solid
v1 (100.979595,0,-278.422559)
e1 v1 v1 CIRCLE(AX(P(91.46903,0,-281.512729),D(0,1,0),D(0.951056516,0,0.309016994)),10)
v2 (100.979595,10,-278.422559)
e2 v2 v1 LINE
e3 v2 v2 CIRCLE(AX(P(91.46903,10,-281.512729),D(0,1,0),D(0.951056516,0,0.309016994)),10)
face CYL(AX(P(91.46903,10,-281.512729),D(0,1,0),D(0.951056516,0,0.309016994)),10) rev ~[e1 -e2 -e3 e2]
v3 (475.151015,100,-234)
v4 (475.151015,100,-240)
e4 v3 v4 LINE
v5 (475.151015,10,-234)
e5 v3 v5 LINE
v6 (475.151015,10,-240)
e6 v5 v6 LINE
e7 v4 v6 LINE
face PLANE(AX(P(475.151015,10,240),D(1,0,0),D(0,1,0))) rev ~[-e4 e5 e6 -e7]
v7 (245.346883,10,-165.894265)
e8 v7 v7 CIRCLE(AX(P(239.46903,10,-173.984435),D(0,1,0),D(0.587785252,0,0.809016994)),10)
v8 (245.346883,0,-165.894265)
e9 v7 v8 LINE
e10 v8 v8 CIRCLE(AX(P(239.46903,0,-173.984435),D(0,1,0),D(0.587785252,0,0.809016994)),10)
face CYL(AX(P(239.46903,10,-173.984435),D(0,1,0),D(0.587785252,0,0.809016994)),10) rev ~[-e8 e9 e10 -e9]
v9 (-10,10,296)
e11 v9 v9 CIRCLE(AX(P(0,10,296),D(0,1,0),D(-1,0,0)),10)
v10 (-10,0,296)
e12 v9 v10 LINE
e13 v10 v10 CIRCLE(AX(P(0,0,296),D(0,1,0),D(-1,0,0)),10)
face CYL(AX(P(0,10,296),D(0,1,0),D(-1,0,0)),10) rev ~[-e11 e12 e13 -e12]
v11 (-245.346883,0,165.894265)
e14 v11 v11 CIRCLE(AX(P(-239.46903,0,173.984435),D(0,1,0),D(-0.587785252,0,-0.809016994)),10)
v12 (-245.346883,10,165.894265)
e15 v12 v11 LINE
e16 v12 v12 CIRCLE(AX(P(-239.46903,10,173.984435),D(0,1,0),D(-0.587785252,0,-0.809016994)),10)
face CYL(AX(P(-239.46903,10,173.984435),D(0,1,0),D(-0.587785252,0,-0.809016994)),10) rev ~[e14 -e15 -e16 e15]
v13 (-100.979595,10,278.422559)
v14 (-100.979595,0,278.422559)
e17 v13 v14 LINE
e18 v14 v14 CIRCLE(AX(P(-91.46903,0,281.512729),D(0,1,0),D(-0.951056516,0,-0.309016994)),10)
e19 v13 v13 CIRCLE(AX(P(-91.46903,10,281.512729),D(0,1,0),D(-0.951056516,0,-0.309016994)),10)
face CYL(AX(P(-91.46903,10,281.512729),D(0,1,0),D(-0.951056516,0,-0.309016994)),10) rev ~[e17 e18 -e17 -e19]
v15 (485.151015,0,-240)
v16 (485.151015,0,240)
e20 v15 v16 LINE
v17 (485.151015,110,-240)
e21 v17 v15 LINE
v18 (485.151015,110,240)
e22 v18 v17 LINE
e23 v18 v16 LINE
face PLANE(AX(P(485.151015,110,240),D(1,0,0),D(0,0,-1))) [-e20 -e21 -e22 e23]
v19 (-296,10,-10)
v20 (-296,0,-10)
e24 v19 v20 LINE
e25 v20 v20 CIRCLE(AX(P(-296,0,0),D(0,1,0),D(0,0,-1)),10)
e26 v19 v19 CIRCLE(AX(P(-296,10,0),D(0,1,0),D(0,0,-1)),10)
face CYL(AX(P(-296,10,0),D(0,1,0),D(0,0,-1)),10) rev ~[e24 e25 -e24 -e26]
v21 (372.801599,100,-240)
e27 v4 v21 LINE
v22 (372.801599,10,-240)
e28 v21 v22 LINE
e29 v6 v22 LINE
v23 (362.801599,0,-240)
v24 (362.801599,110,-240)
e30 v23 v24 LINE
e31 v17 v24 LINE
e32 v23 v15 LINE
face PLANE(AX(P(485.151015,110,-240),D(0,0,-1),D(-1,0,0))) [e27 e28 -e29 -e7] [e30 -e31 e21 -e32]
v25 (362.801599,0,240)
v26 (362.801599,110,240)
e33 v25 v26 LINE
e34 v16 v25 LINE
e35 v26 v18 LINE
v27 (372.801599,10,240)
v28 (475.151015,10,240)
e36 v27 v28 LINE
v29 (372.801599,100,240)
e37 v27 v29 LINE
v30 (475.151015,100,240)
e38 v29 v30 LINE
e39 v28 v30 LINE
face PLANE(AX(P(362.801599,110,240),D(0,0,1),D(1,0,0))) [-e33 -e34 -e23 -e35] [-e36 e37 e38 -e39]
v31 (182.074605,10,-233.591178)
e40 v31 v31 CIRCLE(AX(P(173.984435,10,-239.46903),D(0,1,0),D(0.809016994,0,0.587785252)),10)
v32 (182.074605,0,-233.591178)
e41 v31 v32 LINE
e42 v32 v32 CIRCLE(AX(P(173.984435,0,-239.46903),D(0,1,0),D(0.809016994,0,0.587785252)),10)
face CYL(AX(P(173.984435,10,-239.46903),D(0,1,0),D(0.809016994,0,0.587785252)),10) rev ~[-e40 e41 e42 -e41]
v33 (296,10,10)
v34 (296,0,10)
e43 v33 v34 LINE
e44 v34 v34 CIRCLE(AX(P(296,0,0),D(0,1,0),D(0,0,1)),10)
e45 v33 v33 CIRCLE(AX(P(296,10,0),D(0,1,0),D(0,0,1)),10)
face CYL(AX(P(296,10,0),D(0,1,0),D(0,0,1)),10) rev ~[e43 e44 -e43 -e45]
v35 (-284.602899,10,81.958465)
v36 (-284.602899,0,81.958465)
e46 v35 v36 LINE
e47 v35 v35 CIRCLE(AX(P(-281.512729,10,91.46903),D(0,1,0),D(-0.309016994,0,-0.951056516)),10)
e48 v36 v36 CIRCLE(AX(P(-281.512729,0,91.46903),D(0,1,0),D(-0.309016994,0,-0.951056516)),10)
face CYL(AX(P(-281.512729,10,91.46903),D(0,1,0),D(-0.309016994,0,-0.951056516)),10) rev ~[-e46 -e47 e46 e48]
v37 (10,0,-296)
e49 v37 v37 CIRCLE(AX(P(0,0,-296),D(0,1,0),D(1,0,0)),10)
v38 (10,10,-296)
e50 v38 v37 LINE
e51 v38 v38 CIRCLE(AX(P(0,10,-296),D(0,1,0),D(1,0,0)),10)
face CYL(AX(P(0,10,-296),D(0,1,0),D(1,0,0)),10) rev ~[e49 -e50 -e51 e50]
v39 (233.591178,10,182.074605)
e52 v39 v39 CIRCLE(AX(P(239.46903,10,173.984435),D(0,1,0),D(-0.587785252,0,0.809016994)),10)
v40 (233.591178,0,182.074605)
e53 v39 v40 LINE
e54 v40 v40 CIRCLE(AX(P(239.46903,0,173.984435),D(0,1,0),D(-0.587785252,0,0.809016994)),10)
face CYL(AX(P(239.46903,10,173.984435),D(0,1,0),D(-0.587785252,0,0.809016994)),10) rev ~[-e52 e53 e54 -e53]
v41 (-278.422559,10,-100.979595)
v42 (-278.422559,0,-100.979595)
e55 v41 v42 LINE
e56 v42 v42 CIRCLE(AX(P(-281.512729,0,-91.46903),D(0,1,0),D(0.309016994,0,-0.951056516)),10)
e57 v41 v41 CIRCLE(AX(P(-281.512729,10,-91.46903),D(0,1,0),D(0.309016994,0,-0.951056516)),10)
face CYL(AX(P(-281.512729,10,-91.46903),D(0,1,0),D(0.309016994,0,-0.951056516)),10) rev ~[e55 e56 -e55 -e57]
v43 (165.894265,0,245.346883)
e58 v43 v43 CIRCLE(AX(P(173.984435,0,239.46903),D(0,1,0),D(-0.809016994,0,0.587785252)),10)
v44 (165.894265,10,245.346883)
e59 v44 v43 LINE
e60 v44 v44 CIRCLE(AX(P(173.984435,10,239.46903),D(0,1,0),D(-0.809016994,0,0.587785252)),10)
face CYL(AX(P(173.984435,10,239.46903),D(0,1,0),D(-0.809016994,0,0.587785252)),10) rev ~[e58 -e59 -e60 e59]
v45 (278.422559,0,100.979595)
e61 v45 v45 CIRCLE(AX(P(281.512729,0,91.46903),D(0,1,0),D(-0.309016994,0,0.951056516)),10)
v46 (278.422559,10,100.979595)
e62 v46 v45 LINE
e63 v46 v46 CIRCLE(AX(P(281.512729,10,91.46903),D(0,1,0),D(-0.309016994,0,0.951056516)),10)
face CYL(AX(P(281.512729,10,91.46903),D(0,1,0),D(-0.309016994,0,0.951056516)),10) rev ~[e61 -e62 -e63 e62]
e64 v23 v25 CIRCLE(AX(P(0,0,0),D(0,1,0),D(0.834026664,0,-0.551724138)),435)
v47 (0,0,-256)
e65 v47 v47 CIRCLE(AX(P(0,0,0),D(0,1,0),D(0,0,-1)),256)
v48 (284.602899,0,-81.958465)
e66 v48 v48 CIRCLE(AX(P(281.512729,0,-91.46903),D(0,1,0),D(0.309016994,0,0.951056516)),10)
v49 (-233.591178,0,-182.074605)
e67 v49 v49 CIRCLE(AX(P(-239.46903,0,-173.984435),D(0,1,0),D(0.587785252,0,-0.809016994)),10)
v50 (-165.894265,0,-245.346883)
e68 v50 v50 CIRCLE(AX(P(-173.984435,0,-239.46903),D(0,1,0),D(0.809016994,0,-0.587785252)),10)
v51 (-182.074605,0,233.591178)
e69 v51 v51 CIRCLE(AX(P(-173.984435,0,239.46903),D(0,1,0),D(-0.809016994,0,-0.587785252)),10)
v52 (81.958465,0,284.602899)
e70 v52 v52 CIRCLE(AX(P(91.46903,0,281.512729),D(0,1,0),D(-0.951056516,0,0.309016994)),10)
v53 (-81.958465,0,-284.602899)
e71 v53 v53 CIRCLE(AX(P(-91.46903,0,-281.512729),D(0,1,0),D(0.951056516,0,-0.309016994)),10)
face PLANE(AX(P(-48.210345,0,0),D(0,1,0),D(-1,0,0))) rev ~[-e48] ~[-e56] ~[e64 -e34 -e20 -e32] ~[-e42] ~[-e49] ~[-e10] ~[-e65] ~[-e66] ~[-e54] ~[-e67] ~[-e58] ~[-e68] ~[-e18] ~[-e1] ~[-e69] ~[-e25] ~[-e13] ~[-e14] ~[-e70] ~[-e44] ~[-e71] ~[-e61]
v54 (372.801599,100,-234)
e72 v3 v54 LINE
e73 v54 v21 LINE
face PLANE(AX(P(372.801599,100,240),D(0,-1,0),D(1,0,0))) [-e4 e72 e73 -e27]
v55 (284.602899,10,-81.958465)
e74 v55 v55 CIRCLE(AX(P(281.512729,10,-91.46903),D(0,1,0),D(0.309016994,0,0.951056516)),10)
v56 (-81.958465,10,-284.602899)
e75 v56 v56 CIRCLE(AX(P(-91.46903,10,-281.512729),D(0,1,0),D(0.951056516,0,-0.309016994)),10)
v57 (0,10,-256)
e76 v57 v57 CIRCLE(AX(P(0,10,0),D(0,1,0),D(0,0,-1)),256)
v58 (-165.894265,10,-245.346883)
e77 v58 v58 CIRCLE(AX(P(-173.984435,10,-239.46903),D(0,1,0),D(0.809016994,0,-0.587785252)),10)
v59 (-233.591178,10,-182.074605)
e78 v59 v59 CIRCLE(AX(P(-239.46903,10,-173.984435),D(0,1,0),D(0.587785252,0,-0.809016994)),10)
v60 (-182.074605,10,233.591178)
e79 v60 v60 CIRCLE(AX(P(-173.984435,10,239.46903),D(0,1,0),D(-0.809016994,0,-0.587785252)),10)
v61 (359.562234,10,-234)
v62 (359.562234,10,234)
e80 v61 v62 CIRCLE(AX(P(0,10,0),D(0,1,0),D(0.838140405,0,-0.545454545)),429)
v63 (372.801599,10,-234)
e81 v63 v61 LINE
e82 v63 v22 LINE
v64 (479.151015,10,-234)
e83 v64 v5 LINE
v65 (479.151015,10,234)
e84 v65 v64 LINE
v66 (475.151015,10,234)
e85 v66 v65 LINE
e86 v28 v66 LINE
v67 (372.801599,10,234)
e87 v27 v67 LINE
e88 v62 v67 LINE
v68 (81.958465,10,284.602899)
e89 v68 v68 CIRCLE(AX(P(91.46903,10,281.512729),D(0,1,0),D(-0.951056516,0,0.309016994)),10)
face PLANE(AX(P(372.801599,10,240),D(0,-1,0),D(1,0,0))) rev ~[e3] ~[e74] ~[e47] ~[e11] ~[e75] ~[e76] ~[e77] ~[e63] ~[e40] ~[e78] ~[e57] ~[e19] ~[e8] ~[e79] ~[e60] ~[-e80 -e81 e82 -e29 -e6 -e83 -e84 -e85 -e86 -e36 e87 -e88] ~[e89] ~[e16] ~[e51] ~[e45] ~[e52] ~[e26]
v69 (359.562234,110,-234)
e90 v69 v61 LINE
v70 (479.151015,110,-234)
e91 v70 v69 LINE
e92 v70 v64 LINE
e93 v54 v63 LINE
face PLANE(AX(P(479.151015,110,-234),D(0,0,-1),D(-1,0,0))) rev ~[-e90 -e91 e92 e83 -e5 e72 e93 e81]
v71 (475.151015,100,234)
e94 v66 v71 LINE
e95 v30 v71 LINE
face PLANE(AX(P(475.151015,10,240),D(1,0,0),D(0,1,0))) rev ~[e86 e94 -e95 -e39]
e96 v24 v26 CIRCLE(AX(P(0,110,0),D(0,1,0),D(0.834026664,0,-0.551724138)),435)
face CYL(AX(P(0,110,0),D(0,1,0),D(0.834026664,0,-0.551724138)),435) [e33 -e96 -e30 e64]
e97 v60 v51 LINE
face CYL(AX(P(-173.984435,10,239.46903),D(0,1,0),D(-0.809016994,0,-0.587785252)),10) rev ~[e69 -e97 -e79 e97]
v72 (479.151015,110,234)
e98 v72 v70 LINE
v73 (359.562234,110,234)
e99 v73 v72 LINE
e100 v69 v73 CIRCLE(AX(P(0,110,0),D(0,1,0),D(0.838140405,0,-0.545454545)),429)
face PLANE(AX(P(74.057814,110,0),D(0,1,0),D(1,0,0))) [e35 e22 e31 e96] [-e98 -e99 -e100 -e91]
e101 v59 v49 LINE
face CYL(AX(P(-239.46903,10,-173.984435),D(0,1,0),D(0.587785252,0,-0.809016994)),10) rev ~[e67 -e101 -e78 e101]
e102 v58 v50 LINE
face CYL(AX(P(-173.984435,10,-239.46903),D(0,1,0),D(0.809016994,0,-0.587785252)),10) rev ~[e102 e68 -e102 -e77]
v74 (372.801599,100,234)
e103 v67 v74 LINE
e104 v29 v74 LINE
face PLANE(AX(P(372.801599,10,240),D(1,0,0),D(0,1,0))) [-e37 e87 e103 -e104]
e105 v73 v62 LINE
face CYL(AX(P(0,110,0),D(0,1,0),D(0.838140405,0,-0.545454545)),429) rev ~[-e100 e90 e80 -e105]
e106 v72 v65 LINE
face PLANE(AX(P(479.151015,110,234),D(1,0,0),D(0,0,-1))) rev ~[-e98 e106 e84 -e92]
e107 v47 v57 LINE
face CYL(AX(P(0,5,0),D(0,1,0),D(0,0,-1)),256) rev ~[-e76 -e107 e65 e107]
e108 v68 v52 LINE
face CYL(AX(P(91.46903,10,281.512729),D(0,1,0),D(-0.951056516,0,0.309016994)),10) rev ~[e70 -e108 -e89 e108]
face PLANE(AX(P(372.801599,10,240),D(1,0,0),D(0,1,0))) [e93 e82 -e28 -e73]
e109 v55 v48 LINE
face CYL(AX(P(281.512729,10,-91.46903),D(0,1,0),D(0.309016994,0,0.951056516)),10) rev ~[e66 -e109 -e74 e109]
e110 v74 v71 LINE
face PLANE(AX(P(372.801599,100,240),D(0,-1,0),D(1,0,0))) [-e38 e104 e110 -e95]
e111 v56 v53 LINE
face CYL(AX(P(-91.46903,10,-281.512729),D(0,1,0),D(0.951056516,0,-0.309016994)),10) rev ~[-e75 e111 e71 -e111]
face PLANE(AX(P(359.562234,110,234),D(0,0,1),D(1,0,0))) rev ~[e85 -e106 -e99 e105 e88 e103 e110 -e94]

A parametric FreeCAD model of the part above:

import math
import FreeCAD as App
import Part
import Sketcher
from FreeCAD import Vector


def add_polygon(sketch, points):
    """Adds a closed chain of lines whose ends are joined by coincident constraints."""
    first, n = sketch.GeometryCount, len(points)
    for a, b in zip(points, points[1:] + points[:1]):
        sketch.addGeometry(Part.LineSegment(App.Vector(*a, 0), App.Vector(*b, 0)), False)
    for i in range(n):
        sketch.addConstraint(Sketcher.Constraint("Coincident", first + i, 2, first + (i + 1) % n, 1))

doc = App.newDocument("Part")
body = doc.addObject("PartDesign::Body", "Body")

# Sketch on XY plane
sketch1 = body.newObject("Sketcher::SketchObject", "Sketch")
sketch1.AttachmentSupport = (doc.getObject("XY_Plane"), [""])
sketch1.MapMode = "FlatFace"
add_polygon(sketch1, [(256, 10), (256, 0), (336, 0), (336, 10)])  # lines 0-3
sketch1.addConstraint([
    Sketcher.Constraint("Vertical", 0),
    Sketcher.Constraint("Horizontal", 1),
    Sketcher.Constraint("Vertical", 2),
    Sketcher.Constraint("Horizontal", 3),
    Sketcher.Constraint("PointOnObject", 0, 2, -1),
    Sketcher.Constraint("DistanceX", 1, 1, 1, 2, 80.0),
    Sketcher.Constraint("DistanceY", 0, 2, 0, 1, 10.0),
    Sketcher.Constraint("DistanceX", -1, 1, 0, 2, 256.0),
])
revolution = body.newObject("PartDesign::Revolution", "Revolution")
revolution.Profile = sketch1
revolution.ReferenceAxis = (sketch1, ["V_Axis"])
revolution.Angle = 360

# Sketch on XZ plane
sketch2 = body.newObject("Sketcher::SketchObject", "Sketch001")
sketch2.AttachmentSupport = (doc.getObject("XZ_Plane"), [""])
sketch2.MapMode = "FlatFace"
sketch2.AttachmentOffset = App.Placement(Vector(0, 0, -10), App.Rotation())
sketch2.addGeometry(Part.Circle(Vector(296, 0, 0), Vector(0, 0, 1), 10), False)
sketch2.addConstraint([
    Sketcher.Constraint("PointOnObject", 0, 3, -1),
    Sketcher.Constraint("Diameter", 0, 20.0),
    Sketcher.Constraint("DistanceX", -1, 1, 0, 3, 296.0),
])
pocket1 = body.newObject("PartDesign::Pocket", "Pocket")
pocket1.Profile = sketch2
pocket1.Type = "ThroughAll"
pocket1.Reversed = True
doc.recompute()

polarpattern = body.newObject("PartDesign::PolarPattern", "PolarPattern")
polarpattern.Originals = [pocket1]
polarpattern.Axis = (doc.getObject("Y_Axis"), [""])
polarpattern.Angle = 360
polarpattern.Occurrences = 20
body.Tip = polarpattern

# Sketch on XZ plane
sketch3 = body.newObject("Sketcher::SketchObject", "Sketch002")
sketch3.AttachmentSupport = (doc.getObject("XZ_Plane"), [""])
sketch3.MapMode = "FlatFace"
sketch3.AttachmentOffset = App.Placement(Vector(0, 0, -10), App.Rotation())
sketch3.addGeometry([
    Part.LineSegment(Vector(485, -240, 0), Vector(485, 240, 0)),
    Part.LineSegment(Vector(485, 240, 0), Vector(235, 240, 0)),
    Part.ArcOfCircle(Part.Circle(Vector(0, 0, 0), Vector(0, 0, 1), 336), math.radians(-46), math.radians(46)),
    Part.LineSegment(Vector(235, -240, 0), Vector(485, -240, 0)),
], False)
sketch3.addConstraint([
    Sketcher.Constraint("Coincident", 0, 2, 1, 1),
    Sketcher.Constraint("Coincident", 1, 2, 2, 2),
    Sketcher.Constraint("Coincident", 2, 1, 3, 1),
    Sketcher.Constraint("Coincident", 3, 2, 0, 1),
    Sketcher.Constraint("Vertical", 0),
    Sketcher.Constraint("Horizontal", 1),
    Sketcher.Constraint("Horizontal", 3),
    Sketcher.Constraint("Coincident", 2, 3, -1, 1),
    Sketcher.Constraint("Vertical", 1, 2, 2, 1),
    Sketcher.Constraint("Radius", 2, 336.0),
    Sketcher.Constraint("DistanceX", 1, 2, 1, 1, 250.0),
    Sketcher.Constraint("DistanceY", 0, 1, 0, 2, 480.0),
])
pad1 = body.newObject("PartDesign::Pad", "Pad")
pad1.Profile = sketch3
pad1.Length = 10

# Sketch on XZ plane
sketch4 = body.newObject("Sketcher::SketchObject", "Sketch003")
sketch4.AttachmentSupport = (doc.getObject("XZ_Plane"), [""])
sketch4.MapMode = "FlatFace"
sketch4.AttachmentOffset = App.Placement(Vector(0, 0, -10), App.Rotation())
sketch4.addGeometry([
    Part.LineSegment(Vector(363, -240, 0), Vector(235, -240, 0)),
    Part.ArcOfCircle(Part.Circle(Vector(0, 0, 0), Vector(0, 0, 1), 336), math.radians(46), math.radians(314)),
    Part.LineSegment(Vector(235, 240, 0), Vector(363, 240, 0)),
    Part.ArcOfCircle(Part.Circle(Vector(0, 0, 0), Vector(0, 0, 1), 435), math.radians(33), math.radians(327)),
], False)
sketch4.addConstraint([
    Sketcher.Constraint("Coincident", 0, 2, 1, 2),
    Sketcher.Constraint("Coincident", 1, 1, 2, 1),
    Sketcher.Constraint("Coincident", 2, 2, 3, 1),
    Sketcher.Constraint("Coincident", 3, 2, 0, 1),
    Sketcher.Constraint("Horizontal", 0),
    Sketcher.Constraint("Horizontal", 2),
    Sketcher.Constraint("Coincident", 1, 3, -1, 1),
    Sketcher.Constraint("Coincident", 3, 3, -1, 1),
    Sketcher.Constraint("Vertical", 0, 2, 1, 1),
    Sketcher.Constraint("Radius", 1, 336.0),
    Sketcher.Constraint("Radius", 3, 435.0),
    Sketcher.Constraint("DistanceY", 0, 2, -1, 1, 240.0),
])
pad2 = body.newObject("PartDesign::Pad", "Pad001")
pad2.Profile = sketch4
pad2.Length = 10

# Sketch on XZ plane
sketch5 = body.newObject("Sketcher::SketchObject", "Sketch004")
sketch5.AttachmentSupport = (doc.getObject("XZ_Plane"), [""])
sketch5.MapMode = "FlatFace"
sketch5.AttachmentOffset = App.Placement(Vector(0, 0, -110), App.Rotation())
sketch5.addGeometry([
    Part.LineSegment(Vector(485, -240, 0), Vector(363, -240, 0)),  # 0
    Part.ArcOfCircle(Part.Circle(Vector(0, 0, 0), Vector(0, 0, 1), 435), math.radians(33), math.radians(327)),  # 1
    Part.LineSegment(Vector(363, 240, 0), Vector(485, 240, 0)),  # 2
    Part.LineSegment(Vector(485, 240, 0), Vector(485, -240, 0)),  # 3
    Part.ArcOfCircle(Part.Circle(Vector(0, 0, 0), Vector(0, 0, 1), 429), math.radians(33), math.radians(327)),  # 4
    Part.LineSegment(Vector(360, -234, 0), Vector(479, -234, 0)),  # 5
    Part.LineSegment(Vector(479, -234, 0), Vector(479, 234, 0)),  # 6
    Part.LineSegment(Vector(479, 234, 0), Vector(360, 234, 0)),  # 7
], False)
sketch5.addConstraint([
    Sketcher.Constraint("Coincident", 0, 2, 1, 2),
    Sketcher.Constraint("Coincident", 1, 1, 2, 1),
    Sketcher.Constraint("Coincident", 2, 2, 3, 1),
    Sketcher.Constraint("Coincident", 3, 2, 0, 1),
    Sketcher.Constraint("Coincident", 4, 2, 5, 1),
    Sketcher.Constraint("Coincident", 5, 2, 6, 1),
    Sketcher.Constraint("Coincident", 6, 2, 7, 1),
    Sketcher.Constraint("Coincident", 7, 2, 4, 1),
    Sketcher.Constraint("Horizontal", 0),
    Sketcher.Constraint("Horizontal", 2),
    Sketcher.Constraint("Vertical", 3),
    Sketcher.Constraint("Horizontal", 5),
    Sketcher.Constraint("Vertical", 6),
    Sketcher.Constraint("Horizontal", 7),
    Sketcher.Constraint("Coincident", 1, 3, -1, 1),
    Sketcher.Constraint("Coincident", 4, 3, -1, 1),
    Sketcher.Constraint("Vertical", 0, 2, 1, 1),
    Sketcher.Constraint("Vertical", 4, 2, 7, 2),
    Sketcher.Constraint("Radius", 1, 435.0),
    Sketcher.Constraint("Radius", 4, 429.0),
    Sketcher.Constraint("DistanceY", 3, 2, 3, 1, 480.0),
    Sketcher.Constraint("DistanceY", 6, 1, 6, 2, 468.0),
    Sketcher.Constraint("DistanceX", 5, 2, 3, 2, 6.0),
    Sketcher.Constraint("DistanceX", 5, 1, 5, 2, 119.588781),
])
pad3 = body.newObject("PartDesign::Pad", "Pad002")
pad3.Profile = sketch5
pad3.Length = 100

# Sketch on XY plane
sketch6 = body.newObject("Sketcher::SketchObject", "Sketch005")
sketch6.AttachmentSupport = (doc.getObject("XY_Plane"), [""])
sketch6.MapMode = "FlatFace"
sketch6.AttachmentOffset = App.Placement(Vector(0, 0, 240), App.Rotation())
add_polygon(sketch6, [(373, 100), (373, 10), (475, 10), (475, 100)])  # lines 0-3
sketch6.addConstraint([
    Sketcher.Constraint("Vertical", 0),
    Sketcher.Constraint("Horizontal", 1),
    Sketcher.Constraint("Vertical", 2),
    Sketcher.Constraint("Horizontal", 3),
    Sketcher.Constraint("DistanceY", 0, 2, 0, 1, 90.0),
    Sketcher.Constraint("DistanceY", -1, 1, 0, 2, 10.0),
    Sketcher.Constraint("DistanceX", -1, 1, 0, 2, 372.801599),
    Sketcher.Constraint("DistanceX", 1, 1, 1, 2, 102.349417),
])
pocket2 = body.newObject("PartDesign::Pocket", "Pocket001")
pocket2.Profile = sketch6
pocket2.Type = "ThroughAll"

doc.recompute()
